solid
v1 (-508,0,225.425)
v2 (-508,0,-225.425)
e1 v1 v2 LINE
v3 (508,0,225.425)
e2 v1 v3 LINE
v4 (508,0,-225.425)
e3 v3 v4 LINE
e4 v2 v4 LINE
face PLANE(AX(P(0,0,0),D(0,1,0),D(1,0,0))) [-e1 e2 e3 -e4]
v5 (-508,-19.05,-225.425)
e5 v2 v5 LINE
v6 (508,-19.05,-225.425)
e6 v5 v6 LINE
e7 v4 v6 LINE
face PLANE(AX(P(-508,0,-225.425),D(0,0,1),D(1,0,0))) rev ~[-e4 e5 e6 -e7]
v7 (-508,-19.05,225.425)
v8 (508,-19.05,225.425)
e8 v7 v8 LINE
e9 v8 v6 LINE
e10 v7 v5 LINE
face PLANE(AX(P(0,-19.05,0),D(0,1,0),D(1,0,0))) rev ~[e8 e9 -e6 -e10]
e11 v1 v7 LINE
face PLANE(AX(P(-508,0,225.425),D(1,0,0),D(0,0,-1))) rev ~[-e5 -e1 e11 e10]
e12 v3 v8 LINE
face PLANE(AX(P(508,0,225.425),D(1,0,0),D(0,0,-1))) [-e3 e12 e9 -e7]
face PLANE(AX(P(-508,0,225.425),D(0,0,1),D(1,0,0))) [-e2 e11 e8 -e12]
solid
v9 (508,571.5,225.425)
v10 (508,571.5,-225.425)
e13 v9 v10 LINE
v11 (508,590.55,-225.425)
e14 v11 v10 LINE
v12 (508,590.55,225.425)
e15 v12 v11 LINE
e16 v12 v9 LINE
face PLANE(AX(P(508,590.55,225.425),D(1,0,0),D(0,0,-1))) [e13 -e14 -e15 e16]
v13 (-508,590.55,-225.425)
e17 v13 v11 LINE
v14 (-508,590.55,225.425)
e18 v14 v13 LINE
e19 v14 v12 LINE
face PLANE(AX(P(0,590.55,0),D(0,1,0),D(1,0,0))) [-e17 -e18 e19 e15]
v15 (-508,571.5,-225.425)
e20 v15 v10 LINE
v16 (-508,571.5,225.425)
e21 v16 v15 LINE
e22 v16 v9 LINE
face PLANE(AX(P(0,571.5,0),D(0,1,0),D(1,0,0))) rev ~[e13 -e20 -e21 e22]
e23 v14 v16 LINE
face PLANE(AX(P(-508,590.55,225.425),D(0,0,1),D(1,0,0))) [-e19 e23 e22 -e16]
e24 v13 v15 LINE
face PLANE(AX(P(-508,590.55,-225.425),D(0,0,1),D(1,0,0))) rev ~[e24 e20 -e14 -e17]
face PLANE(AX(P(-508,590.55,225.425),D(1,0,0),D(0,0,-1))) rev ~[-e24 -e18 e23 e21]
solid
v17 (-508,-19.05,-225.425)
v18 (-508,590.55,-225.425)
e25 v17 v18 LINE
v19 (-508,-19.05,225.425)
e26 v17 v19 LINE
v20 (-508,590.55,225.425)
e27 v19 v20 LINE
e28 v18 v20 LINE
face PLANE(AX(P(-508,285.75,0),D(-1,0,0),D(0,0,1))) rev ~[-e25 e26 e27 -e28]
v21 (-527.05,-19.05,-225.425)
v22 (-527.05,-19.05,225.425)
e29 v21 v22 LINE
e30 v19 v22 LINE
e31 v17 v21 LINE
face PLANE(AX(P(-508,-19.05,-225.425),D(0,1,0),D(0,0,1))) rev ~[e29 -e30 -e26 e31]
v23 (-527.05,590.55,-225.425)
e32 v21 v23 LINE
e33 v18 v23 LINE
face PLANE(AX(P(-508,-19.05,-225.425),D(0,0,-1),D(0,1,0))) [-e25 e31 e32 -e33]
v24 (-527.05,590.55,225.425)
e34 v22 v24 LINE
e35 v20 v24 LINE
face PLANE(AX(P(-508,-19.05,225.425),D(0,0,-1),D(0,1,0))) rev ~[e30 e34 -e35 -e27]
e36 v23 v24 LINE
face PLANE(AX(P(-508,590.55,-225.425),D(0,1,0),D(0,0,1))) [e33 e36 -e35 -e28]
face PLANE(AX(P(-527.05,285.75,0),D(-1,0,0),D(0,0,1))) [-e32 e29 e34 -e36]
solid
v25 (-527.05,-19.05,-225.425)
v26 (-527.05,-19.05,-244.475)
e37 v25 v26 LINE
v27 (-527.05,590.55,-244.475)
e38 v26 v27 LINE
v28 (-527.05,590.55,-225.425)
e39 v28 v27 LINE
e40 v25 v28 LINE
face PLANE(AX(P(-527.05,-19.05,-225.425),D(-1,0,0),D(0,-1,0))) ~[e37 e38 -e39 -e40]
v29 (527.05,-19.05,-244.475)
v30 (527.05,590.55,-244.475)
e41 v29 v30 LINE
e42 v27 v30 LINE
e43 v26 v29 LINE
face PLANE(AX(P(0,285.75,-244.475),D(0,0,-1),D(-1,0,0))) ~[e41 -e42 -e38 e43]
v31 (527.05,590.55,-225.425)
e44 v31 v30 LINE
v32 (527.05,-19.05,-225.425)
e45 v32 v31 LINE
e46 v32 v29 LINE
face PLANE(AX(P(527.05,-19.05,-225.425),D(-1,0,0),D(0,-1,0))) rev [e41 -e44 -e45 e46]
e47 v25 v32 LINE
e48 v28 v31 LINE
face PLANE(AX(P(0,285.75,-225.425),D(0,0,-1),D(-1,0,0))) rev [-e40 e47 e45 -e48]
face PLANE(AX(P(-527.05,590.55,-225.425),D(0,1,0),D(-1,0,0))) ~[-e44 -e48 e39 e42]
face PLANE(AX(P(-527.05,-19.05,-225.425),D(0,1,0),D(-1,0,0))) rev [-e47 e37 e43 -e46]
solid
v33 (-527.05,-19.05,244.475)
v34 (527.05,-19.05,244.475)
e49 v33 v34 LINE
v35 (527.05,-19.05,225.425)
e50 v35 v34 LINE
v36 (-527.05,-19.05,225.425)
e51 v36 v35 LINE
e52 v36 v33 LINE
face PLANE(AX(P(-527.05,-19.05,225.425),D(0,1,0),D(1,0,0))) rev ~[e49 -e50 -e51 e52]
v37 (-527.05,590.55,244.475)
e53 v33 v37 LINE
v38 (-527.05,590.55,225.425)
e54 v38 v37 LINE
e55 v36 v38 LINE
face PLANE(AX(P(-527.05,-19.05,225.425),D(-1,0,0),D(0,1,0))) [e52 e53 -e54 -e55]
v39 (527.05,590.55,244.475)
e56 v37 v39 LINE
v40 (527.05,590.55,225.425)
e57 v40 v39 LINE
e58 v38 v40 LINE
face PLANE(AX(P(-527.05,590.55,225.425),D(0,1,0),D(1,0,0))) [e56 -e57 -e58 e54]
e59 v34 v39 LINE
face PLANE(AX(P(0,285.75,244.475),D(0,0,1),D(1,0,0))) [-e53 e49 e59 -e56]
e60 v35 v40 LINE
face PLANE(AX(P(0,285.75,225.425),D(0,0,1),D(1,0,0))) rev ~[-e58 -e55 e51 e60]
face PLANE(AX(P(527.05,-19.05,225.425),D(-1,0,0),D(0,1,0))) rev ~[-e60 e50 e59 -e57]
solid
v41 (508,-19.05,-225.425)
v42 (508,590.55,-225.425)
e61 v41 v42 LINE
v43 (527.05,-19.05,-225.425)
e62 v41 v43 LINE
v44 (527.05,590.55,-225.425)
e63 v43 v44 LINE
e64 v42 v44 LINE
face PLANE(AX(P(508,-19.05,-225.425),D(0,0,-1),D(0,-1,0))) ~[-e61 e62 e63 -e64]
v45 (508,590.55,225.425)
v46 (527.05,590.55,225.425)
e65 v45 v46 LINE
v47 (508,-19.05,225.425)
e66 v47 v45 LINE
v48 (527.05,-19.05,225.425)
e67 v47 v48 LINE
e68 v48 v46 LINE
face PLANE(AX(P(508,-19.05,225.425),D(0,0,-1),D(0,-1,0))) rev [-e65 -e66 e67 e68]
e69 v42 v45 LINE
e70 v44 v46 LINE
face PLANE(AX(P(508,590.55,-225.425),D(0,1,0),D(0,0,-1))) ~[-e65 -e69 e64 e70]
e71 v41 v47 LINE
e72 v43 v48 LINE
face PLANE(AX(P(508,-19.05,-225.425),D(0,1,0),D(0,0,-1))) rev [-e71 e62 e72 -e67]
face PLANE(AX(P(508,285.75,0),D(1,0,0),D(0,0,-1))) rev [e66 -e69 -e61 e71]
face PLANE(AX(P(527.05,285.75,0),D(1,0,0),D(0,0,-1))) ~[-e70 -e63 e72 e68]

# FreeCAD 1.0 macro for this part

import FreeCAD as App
import Part
import Sketcher

V = App.Vector
Q = App.Units.Quantity


def add_polygon(sketch, points):
    """Adds a closed chain of lines whose ends are joined by coincident constraints."""
    first, n = sketch.GeometryCount, len(points)
    for a, b in zip(points, points[1:] + points[:1]):
        sketch.addGeometry(Part.LineSegment(App.Vector(*a, 0), App.Vector(*b, 0)), False)
    for i in range(n):
        sketch.addConstraint(Sketcher.Constraint("Coincident", first + i, 2, first + (i + 1) % n, 1))

doc = App.newDocument("Part")
params = doc.addObject("Spreadsheet::Sheet", "Params")
for row, (alias, value) in enumerate([
    ("sketch1_width", "40 in"),
    ("sketch1_height", "17.75 in"),
    ("pad1_length", "0.75 in"),
    ("sketch2_width", "24 in"),
    ("sketch2_height", "17.75 in"),
    ("pad2_length", "0.75 in"),
    ("sketch3_height", "24 in"),
    ("sketch3_width", "41.5 in"),
    ("pad3_length", "0.75 in"),
    ("sketch4_width", "40 in"),
    ("sketch4_height", "17.75 in"),
    ("pad4_length", "0.75 in"),
], start=1):
    params.set(f"A{row}", alias)
    params.set(f"B{row}", "=" + value)
    params.setAlias(f"B{row}", alias)

body = doc.addObject("PartDesign::Body", "Body")

sketch1 = doc.addObject("Sketcher::SketchObject", "Sketch")
body.addObject(sketch1)
sketch1.AttachmentSupport = (doc.XZ_Plane, [""])
sketch1.MapMode = "FlatFace"
add_polygon(sketch1, [(-508, -225), (-508, 225), (508, 225), (508, -225)])
sketch1.addConstraint([
    Sketcher.Constraint("Vertical", 0),
    Sketcher.Constraint("Horizontal", 1),
    Sketcher.Constraint("Vertical", 2),
    Sketcher.Constraint("Horizontal", 3),
    Sketcher.Constraint("Symmetric", 0, 2, 2, 2, -1, 1),
    Sketcher.Constraint("DistanceX", 1, 1, 1, 2, Q("40 in")),
    Sketcher.Constraint("DistanceY", 0, 1, 0, 2, Q("17.75 in")),
])
sketch1.setExpression("Constraints[9]", "Params.sketch1_width")
sketch1.setExpression("Constraints[10]", "Params.sketch1_height")
pad1 = doc.addObject("PartDesign::Pad", "Pad")
body.addObject(pad1)
pad1.Profile = sketch1
pad1.setExpression("Length", "Params.pad1_length")
body2 = doc.addObject("PartDesign::Body", "Body001")

sketch2 = doc.addObject("Sketcher::SketchObject", "Sketch001")
body2.addObject(sketch2)
sketch2.AttachmentSupport = (doc.getObject("YZ_Plane001"), [""])
sketch2.MapMode = "FlatFace"
sketch2.AttachmentOffset = App.Placement(V(0, 0, -20 * 25.4), App.Rotation())
add_polygon(sketch2, [(591, -225), (-19, -225), (-19, 225), (591, 225)])
sketch2.addConstraint([
    Sketcher.Constraint("Horizontal", 0),
    Sketcher.Constraint("Vertical", 1),
    Sketcher.Constraint("Horizontal", 2),
    Sketcher.Constraint("Vertical", 3),
    Sketcher.Constraint("DistanceX", 0, 2, 0, 1, Q("24 in")),
    Sketcher.Constraint("DistanceY", 1, 1, 1, 2, Q("17.75 in")),
    Sketcher.Constraint("DistanceX", 0, 2, -1, 1, Q("0.75 in")),
    Sketcher.Constraint("DistanceY", 0, 2, -1, 1, Q("8.875 in")),
])
sketch2.setExpression("Constraints[8]", "Params.sketch2_width")
sketch2.setExpression("Constraints[9]", "Params.sketch2_height")
pad2 = doc.addObject("PartDesign::Pad", "Pad001")
body2.addObject(pad2)
pad2.Profile = sketch2
pad2.setExpression("Length", "Params.pad2_length")
pad2.Reversed = True
body3 = doc.addObject("PartDesign::Body", "Body002")
doc.recompute()

mirroring = doc.addObject("Part::Mirroring", "Mirroring")
mirroring.Source = body2
mirroring.Base = V(0, 0, 0)
mirroring.Normal = V(1, 0, 0)
body3.BaseFeature = mirroring
doc.recompute()
body4 = doc.addObject("PartDesign::Body", "Body003")

sketch3 = doc.addObject("Sketcher::SketchObject", "Sketch002")
body4.addObject(sketch3)
sketch3.AttachmentSupport = (doc.getObject("XY_Plane003"), [""])
sketch3.MapMode = "FlatFace"
sketch3.AttachmentOffset = App.Placement(V(0, 0, 8.875 * 25.4), App.Rotation())
add_polygon(sketch3, [(-527, 591), (-527, -19), (527, -19), (527, 591)])
sketch3.addConstraint([
    Sketcher.Constraint("Vertical", 0),
    Sketcher.Constraint("Horizontal", 1),
    Sketcher.Constraint("Vertical", 2),
    Sketcher.Constraint("Horizontal", 3),
    Sketcher.Constraint("DistanceY", 0, 2, 0, 1, Q("24 in")),
    Sketcher.Constraint("DistanceX", 1, 1, 1, 2, Q("41.5 in")),
    Sketcher.Constraint("DistanceX", 0, 2, -1, 1, Q("20.75 in")),
    Sketcher.Constraint("DistanceY", 0, 2, -1, 1, Q("0.75 in")),
])
sketch3.setExpression("Constraints[8]", "Params.sketch3_height")
sketch3.setExpression("Constraints[9]", "Params.sketch3_width")
pad3 = doc.addObject("PartDesign::Pad", "Pad002")
body4.addObject(pad3)
pad3.Profile = sketch3
pad3.setExpression("Length", "Params.pad3_length")
body5 = doc.addObject("PartDesign::Body", "Body004")
doc.recompute()

mirroring2 = doc.addObject("Part::Mirroring", "Mirroring001")
mirroring2.Source = body4
mirroring2.Base = V(0, 0, 0)
mirroring2.Normal = V(0, 0, 1)
body5.BaseFeature = mirroring2
doc.recompute()
body6 = doc.addObject("PartDesign::Body", "Body005")

sketch4 = doc.addObject("Sketcher::SketchObject", "Sketch003")
body6.addObject(sketch4)
sketch4.AttachmentSupport = (doc.getObject("XZ_Plane005"), [""])
sketch4.MapMode = "FlatFace"
sketch4.AttachmentOffset = App.Placement(V(0, 0, -23.25 * 25.4), App.Rotation())
add_polygon(sketch4, [(-508, -225), (-508, 225), (508, 225), (508, -225)])
sketch4.addConstraint([
    Sketcher.Constraint("Vertical", 0),
    Sketcher.Constraint("Horizontal", 1),
    Sketcher.Constraint("Vertical", 2),
    Sketcher.Constraint("Horizontal", 3),
    Sketcher.Constraint("Symmetric", 0, 2, 2, 2, -1, 1),
    Sketcher.Constraint("DistanceX", 1, 1, 1, 2, Q("40 in")),
    Sketcher.Constraint("DistanceY", 0, 1, 0, 2, Q("17.75 in")),
])
sketch4.setExpression("Constraints[9]", "Params.sketch4_width")
sketch4.setExpression("Constraints[10]", "Params.sketch4_height")
pad4 = doc.addObject("PartDesign::Pad", "Pad003")
body6.addObject(pad4)
pad4.Profile = sketch4
pad4.setExpression("Length", "Params.pad4_length")
mirroring.Visibility = False
mirroring2.Visibility = False

doc.recompute()
